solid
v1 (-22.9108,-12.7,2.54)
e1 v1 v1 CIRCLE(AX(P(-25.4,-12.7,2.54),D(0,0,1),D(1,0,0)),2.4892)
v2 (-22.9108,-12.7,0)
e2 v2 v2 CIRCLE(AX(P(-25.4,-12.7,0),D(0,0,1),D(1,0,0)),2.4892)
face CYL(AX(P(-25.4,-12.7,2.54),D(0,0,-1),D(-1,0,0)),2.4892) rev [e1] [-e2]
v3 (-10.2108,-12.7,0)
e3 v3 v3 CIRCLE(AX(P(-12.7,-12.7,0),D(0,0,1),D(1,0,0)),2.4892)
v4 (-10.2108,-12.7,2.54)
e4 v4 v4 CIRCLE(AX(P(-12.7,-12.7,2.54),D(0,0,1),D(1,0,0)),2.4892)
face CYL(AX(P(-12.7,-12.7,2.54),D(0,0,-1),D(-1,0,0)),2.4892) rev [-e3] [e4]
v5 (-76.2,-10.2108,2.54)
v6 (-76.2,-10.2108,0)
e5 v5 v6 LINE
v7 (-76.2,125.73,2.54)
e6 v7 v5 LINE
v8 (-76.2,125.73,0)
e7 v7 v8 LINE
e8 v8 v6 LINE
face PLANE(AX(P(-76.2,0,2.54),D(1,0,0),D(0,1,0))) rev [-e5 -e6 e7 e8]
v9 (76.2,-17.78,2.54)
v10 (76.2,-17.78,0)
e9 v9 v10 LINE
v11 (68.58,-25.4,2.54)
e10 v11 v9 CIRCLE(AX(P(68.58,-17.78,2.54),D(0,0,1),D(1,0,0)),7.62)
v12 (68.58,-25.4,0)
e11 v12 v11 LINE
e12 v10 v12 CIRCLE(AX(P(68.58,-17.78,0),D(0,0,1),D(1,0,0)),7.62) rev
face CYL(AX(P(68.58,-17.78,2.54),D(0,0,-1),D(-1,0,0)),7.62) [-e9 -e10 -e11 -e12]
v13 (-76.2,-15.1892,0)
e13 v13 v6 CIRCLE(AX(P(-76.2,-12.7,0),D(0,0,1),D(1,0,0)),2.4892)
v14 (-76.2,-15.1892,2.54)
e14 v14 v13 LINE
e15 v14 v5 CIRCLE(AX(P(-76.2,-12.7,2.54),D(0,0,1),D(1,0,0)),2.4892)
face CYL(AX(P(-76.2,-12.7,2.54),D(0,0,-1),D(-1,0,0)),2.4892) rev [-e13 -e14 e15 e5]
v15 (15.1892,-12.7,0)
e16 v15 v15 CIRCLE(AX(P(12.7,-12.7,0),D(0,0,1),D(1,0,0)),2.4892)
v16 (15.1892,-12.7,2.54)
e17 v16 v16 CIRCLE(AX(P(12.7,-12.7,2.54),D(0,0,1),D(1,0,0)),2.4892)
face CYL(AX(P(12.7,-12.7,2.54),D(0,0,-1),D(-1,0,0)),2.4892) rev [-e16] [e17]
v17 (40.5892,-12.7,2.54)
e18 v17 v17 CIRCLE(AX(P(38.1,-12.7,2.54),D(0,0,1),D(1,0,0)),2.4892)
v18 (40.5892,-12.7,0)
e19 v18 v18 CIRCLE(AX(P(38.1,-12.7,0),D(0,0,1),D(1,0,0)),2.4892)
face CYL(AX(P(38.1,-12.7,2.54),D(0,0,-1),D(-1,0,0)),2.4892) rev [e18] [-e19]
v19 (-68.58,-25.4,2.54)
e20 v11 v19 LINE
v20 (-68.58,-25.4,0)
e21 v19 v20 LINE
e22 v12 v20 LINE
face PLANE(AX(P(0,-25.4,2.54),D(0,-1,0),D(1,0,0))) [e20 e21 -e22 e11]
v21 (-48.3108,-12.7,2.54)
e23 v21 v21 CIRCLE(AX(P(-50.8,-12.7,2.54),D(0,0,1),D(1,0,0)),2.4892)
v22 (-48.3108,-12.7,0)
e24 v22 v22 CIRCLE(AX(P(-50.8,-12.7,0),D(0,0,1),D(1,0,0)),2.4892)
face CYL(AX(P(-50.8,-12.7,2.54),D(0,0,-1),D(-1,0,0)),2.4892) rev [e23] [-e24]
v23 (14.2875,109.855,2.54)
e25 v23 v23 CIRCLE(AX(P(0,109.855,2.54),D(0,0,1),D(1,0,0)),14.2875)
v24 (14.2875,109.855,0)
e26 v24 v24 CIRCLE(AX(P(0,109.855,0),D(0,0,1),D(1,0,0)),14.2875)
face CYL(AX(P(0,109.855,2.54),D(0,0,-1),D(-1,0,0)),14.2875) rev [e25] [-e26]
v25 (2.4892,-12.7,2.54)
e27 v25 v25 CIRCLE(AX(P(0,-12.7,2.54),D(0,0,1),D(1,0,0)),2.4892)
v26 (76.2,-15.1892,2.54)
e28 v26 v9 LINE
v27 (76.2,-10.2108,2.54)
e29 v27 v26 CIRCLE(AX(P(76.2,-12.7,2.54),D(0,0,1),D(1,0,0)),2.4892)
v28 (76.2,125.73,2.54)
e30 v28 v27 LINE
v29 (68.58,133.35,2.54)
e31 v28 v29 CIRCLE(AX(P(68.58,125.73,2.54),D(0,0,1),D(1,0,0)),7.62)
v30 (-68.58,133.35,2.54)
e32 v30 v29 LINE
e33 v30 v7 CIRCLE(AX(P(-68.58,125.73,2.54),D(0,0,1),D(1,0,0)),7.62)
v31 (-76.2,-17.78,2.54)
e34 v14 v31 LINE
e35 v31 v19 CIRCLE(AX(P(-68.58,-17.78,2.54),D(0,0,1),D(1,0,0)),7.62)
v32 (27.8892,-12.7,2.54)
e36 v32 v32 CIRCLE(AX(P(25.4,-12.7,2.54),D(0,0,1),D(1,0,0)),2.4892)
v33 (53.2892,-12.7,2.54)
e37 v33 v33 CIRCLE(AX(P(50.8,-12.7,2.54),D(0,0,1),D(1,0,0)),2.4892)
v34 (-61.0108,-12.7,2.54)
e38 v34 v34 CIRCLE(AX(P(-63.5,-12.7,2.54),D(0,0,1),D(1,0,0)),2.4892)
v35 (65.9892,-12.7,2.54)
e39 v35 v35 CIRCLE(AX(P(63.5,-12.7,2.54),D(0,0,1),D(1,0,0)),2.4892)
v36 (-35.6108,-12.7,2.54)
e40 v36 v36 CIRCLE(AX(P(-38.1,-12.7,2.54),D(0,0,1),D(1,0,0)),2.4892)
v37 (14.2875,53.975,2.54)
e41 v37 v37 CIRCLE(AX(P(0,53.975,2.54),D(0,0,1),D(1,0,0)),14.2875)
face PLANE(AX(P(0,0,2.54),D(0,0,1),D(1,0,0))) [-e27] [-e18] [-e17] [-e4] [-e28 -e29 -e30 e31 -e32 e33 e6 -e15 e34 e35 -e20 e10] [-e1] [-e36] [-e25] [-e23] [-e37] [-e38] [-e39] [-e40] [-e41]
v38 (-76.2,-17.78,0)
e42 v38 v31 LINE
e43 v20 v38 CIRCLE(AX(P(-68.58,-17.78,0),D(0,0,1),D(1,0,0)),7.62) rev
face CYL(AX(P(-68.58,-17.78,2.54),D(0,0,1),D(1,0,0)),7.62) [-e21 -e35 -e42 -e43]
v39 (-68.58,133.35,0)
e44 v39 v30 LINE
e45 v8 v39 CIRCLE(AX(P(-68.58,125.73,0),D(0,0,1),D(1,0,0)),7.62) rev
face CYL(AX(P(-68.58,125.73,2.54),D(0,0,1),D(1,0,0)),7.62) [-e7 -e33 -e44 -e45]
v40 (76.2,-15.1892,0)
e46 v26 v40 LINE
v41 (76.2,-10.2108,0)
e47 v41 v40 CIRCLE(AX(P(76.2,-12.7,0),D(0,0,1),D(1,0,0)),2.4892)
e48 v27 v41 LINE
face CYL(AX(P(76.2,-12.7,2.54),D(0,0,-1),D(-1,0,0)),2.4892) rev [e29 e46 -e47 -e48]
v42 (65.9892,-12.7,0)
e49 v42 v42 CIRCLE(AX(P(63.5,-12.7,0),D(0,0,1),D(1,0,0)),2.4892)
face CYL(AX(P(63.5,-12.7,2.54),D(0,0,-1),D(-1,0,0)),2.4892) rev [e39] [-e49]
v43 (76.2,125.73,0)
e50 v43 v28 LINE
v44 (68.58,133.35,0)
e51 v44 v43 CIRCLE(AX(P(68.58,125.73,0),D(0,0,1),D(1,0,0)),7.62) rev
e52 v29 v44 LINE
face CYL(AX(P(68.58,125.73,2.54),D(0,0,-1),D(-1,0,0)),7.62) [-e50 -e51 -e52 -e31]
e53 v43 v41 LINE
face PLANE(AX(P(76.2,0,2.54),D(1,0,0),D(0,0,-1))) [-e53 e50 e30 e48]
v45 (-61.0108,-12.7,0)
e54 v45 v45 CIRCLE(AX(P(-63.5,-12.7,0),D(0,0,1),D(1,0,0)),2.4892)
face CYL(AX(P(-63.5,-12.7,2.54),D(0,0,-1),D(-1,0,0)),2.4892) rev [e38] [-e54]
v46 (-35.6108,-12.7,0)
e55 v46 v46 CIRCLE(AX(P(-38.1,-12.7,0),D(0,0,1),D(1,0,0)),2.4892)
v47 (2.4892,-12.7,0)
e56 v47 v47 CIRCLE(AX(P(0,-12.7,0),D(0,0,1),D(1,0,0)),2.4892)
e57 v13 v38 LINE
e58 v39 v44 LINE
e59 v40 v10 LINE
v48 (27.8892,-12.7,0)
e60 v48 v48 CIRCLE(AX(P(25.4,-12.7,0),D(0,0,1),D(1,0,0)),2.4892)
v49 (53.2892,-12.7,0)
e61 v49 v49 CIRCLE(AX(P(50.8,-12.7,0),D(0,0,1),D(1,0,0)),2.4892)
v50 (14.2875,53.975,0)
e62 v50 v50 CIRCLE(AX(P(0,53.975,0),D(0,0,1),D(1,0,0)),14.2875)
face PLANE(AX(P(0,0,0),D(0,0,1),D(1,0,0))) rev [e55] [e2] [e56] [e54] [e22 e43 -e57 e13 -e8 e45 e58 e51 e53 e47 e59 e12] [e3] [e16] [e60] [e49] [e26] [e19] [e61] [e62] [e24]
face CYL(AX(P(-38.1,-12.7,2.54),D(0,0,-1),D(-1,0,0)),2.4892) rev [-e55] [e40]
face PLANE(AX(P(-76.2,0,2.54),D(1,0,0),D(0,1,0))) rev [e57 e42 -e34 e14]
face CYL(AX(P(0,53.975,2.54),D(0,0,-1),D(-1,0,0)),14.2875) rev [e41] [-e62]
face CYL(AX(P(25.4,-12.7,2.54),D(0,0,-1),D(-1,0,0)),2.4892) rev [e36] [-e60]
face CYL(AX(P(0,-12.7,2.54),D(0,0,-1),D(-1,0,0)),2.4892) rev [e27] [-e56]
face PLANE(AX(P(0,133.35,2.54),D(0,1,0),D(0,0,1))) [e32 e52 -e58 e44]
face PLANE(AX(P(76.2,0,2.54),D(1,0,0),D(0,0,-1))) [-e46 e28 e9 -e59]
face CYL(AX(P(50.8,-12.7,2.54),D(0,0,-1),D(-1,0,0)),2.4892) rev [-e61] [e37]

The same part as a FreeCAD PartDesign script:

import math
import FreeCAD as App
import Part
import Sketcher

V = App.Vector
Q = App.Units.Quantity


def edges_at(feature, points):
    """Names of the edges that pass closest to the given points."""
    edges = feature.Shape.Edges
    near = lambda p: min(range(len(edges)), key=lambda i: edges[i].distToShape(Part.Vertex(*p))[0])
    return sorted({f"Edge{near(p) + 1}" for p in points})

doc = App.newDocument("Part")
body = doc.addObject("PartDesign::Body", "Body")

sketch1 = doc.addObject("Sketcher::SketchObject", "Sketch")
body.addObject(sketch1)
sketch1.AttachmentSupport = (doc.XY_Plane, [""])
sketch1.MapMode = "FlatFace"
sketch1.addGeometry([
    Part.LineSegment(V(-76.2, -15.2, 0), V(-76.2, -25.4, 0)),
    Part.LineSegment(V(-76.2, -25.4, 0), V(76.2, -25.4, 0)),
    Part.LineSegment(V(76.2, -25.4, 0), V(76.2, -15.2, 0)),
    Part.ArcOfCircle(Part.Circle(V(76.2, -12.7, 0), V(0, 0, 1), 2.5), math.radians(90), math.radians(270)),
    Part.LineSegment(V(76.2, -10.2, 0), V(76.2, 133.3, 0)),
    Part.LineSegment(V(76.2, 133.3, 0), V(-76.2, 133.3, 0)),
    Part.LineSegment(V(-76.2, 133.3, 0), V(-76.2, -10.2, 0)),
    Part.ArcOfCircle(Part.Circle(V(-76.2, -12.7, 0), V(0, 0, 1), 2.5), math.radians(-90), math.radians(90)),
    Part.Circle(V(-63.5, -12.7, 0), V(0, 0, 1), 2.5),
    Part.Circle(V(-50.8, -12.7, 0), V(0, 0, 1), 2.5),
    Part.Circle(V(-38.1, -12.7, 0), V(0, 0, 1), 2.5),
    Part.Circle(V(-25.4, -12.7, 0), V(0, 0, 1), 2.5),
    Part.Circle(V(-12.7, -12.7, 0), V(0, 0, 1), 2.5),
    Part.Circle(V(0, -12.7, 0), V(0, 0, 1), 2.5),
    Part.Circle(V(12.7, -12.7, 0), V(0, 0, 1), 2.5),
    Part.Circle(V(25.4, -12.7, 0), V(0, 0, 1), 2.5),
    Part.Circle(V(38.1, -12.7, 0), V(0, 0, 1), 2.5),
    Part.Circle(V(50.8, -12.7, 0), V(0, 0, 1), 2.5),
    Part.Circle(V(63.5, -12.7, 0), V(0, 0, 1), 2.5),
    Part.Circle(V(0, 54, 0), V(0, 0, 1), 14.3),
    Part.Circle(V(0, 109.9, 0), V(0, 0, 1), 14.3),
], False)
sketch1.addConstraint([
    Sketcher.Constraint("Coincident", 0, 2, 1, 1),
    Sketcher.Constraint("Coincident", 1, 2, 2, 1),
    Sketcher.Constraint("Coincident", 2, 2, 3, 2),
    Sketcher.Constraint("Coincident", 3, 1, 4, 1),
    Sketcher.Constraint("Coincident", 4, 2, 5, 1),
    Sketcher.Constraint("Coincident", 5, 2, 6, 1),
    Sketcher.Constraint("Coincident", 6, 2, 7, 2),
    Sketcher.Constraint("Coincident", 7, 1, 0, 1),
    Sketcher.Constraint("Vertical", 0),
    Sketcher.Constraint("Horizontal", 1),
    Sketcher.Constraint("Vertical", 2),
    Sketcher.Constraint("Vertical", 4),
    Sketcher.Constraint("Horizontal", 5),
    Sketcher.Constraint("Vertical", 6),
    Sketcher.Constraint("Equal", 3, 7),
    Sketcher.Constraint("Equal", 7, 8),
    Sketcher.Constraint("Equal", 8, 9),
    Sketcher.Constraint("Equal", 9, 10),
    Sketcher.Constraint("Equal", 10, 11),
    Sketcher.Constraint("Equal", 11, 12),
    Sketcher.Constraint("Equal", 12, 13),
    Sketcher.Constraint("Equal", 13, 14),
    Sketcher.Constraint("Equal", 14, 15),
    Sketcher.Constraint("Equal", 15, 16),
    Sketcher.Constraint("Equal", 16, 17),
    Sketcher.Constraint("Equal", 17, 18),
    Sketcher.Constraint("Equal", 19, 20),
    Sketcher.Constraint("Symmetric", 3, 3, 7, 3, -2),
    Sketcher.Constraint("Symmetric", 12, 3, 14, 3, -2),
    Sketcher.Constraint("Symmetric", 11, 3, 15, 3, -2),
    Sketcher.Constraint("Symmetric", 10, 3, 16, 3, -2),
    Sketcher.Constraint("Symmetric", 9, 3, 17, 3, -2),
    Sketcher.Constraint("Symmetric", 8, 3, 18, 3, -2),
    Sketcher.Constraint("PointOnObject", 13, 3, -2),
    Sketcher.Constraint("PointOnObject", 19, 3, -2),
    Sketcher.Constraint("PointOnObject", 20, 3, -2),
    Sketcher.Constraint("Horizontal", 7, 3, 8, 3),
    Sketcher.Constraint("Horizontal", 8, 3, 9, 3),
    Sketcher.Constraint("Horizontal", 9, 3, 10, 3),
    Sketcher.Constraint("Horizontal", 10, 3, 11, 3),
    Sketcher.Constraint("Horizontal", 11, 3, 12, 3),
    Sketcher.Constraint("Horizontal", 12, 3, 13, 3),
    Sketcher.Constraint("Vertical", 7, 3, 0, 2),
    Sketcher.Constraint("Vertical", 3, 3, 1, 2),
    Sketcher.Constraint("Vertical", 2, 2, 3, 1),
    Sketcher.Constraint("Vertical", 0, 2, 5, 2),
    Sketcher.Constraint("DistanceX", 1, 1, 1, 2, Q("6 in")),
    Sketcher.Constraint("Diameter", 8, Q("0.196 in")),
    Sketcher.Constraint("Diameter", 19, Q("1.125 in")),
    Sketcher.Constraint("DistanceX", 9, 3, -1, 1, Q("2 in")),
    Sketcher.Constraint("DistanceX", 11, 3, -1, 1, Q("1 in")),
    Sketcher.Constraint("DistanceY", 0, 2, -1, 1, Q("1 in")),
    Sketcher.Constraint("DistanceX", 8, 3, 10, 3, Q("1 in")),
    Sketcher.Constraint("DistanceX", 10, 3, 12, 3, Q("1 in")),
    Sketcher.Constraint("DistanceX", 12, 3, 14, 3, Q("1 in")),
    Sketcher.Constraint("DistanceY", 3, 3, -1, 1, Q("0.5 in")),
    Sketcher.Constraint("DistanceY", 19, 3, 20, 3, Q("2.2 in")),
    Sketcher.Constraint("DistanceY", 4, 1, 4, 2, Q("5.652 in")),
    Sketcher.Constraint("DistanceY", -1, 1, 19, 3, Q("2.125 in")),
])
pad1 = doc.addObject("PartDesign::Pad", "Pad")
body.addObject(pad1)
pad1.Profile = sketch1
pad1.Length = Q("0.1 in")
doc.recompute()

fillet = doc.addObject("PartDesign::Fillet", "Fillet")
body.addObject(fillet)
fillet.Base = (pad1, edges_at(pad1, [
    (76.2, -25.4, 1.27),
    (-76.2, -25.4, 1.27),
    (-76.2, 133.35, 1.27),
    (76.2, 133.35, 1.27),
]))
fillet.Radius = Q("0.3 in")

doc.recompute()
